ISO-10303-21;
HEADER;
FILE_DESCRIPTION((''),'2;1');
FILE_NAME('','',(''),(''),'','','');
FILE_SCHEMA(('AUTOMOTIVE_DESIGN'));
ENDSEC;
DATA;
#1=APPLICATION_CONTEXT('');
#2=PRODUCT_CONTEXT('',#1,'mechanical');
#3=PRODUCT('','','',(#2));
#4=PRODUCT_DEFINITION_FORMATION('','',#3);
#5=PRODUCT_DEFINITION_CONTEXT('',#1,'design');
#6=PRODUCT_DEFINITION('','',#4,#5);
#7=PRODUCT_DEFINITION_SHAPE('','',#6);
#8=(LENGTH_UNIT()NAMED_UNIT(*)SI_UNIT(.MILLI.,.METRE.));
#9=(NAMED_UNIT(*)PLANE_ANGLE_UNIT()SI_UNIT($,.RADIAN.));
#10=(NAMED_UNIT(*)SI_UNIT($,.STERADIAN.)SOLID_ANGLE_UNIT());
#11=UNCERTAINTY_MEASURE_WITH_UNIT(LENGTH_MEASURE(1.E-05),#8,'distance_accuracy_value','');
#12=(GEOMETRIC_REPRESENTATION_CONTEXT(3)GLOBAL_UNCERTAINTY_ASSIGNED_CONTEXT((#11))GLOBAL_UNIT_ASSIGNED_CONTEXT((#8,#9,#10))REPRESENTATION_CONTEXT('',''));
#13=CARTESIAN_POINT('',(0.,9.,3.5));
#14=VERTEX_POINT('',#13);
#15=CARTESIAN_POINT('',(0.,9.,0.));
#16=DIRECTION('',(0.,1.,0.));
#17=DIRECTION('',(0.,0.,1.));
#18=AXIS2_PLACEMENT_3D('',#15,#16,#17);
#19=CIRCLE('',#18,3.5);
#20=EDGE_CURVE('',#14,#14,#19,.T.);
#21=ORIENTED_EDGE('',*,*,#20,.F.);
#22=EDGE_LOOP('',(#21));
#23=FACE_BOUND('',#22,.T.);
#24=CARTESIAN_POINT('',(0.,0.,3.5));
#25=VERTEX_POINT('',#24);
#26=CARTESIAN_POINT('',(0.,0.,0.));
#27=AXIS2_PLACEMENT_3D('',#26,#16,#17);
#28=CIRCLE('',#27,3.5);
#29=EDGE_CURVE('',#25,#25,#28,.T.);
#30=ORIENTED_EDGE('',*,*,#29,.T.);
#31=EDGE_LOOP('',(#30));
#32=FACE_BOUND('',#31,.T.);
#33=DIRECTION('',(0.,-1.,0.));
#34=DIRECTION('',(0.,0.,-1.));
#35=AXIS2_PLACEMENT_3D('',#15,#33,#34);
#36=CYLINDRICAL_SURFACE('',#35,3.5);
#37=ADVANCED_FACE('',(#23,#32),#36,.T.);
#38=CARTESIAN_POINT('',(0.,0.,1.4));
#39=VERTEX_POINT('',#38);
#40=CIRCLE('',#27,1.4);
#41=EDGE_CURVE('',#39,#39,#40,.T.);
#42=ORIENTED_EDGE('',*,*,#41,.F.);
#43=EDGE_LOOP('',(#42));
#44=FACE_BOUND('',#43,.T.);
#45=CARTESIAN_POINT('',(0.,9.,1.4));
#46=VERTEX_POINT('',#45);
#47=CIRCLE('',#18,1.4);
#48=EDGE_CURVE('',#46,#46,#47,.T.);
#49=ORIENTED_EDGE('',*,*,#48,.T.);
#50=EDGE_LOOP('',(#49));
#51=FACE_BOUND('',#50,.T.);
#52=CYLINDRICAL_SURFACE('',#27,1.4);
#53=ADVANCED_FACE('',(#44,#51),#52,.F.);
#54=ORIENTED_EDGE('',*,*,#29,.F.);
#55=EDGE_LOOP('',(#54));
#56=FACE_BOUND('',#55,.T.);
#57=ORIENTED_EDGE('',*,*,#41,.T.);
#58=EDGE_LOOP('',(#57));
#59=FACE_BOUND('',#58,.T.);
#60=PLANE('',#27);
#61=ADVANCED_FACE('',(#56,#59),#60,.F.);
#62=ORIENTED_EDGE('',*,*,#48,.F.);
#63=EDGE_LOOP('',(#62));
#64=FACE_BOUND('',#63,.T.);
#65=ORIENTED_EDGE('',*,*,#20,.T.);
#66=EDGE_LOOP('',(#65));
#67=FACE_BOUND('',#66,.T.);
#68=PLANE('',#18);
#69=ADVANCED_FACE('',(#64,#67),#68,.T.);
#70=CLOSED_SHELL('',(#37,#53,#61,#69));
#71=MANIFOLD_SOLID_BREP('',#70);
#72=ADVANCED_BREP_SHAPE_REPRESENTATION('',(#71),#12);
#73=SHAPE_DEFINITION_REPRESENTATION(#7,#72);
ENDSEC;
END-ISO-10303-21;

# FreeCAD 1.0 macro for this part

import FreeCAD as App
import Part
import Sketcher
Q = App.Units.Quantity

doc = App.newDocument("Part")
body = doc.addObject("PartDesign::Body", "Body")

# Sketch on XZ plane
sketch1 = doc.addObject("Sketcher::SketchObject", "Sketch")
body.addObject(sketch1)
sketch1.AttachmentSupport = (doc.XZ_Plane, [""])
sketch1.MapMode = "FlatFace"
sketch1.addGeometry(Part.Circle(App.Vector(0, 0, 0), App.Vector(0, 0, 1), 3.5), False)
sketch1.addConstraint(Sketcher.Constraint("Coincident", 0, 3, -1, 1))
sketch1.addConstraint(Sketcher.Constraint("Diameter", 0, Q("7 mm")))
pad1 = doc.addObject("PartDesign::Pad", "Pad")
body.addObject(pad1)
pad1.Profile = sketch1
pad1.Length = 9
pad1.Reversed = True

# Sketch on XZ plane
sketch2 = doc.addObject("Sketcher::SketchObject", "Sketch001")
body.addObject(sketch2)
sketch2.AttachmentSupport = (doc.XZ_Plane, [""])
sketch2.MapMode = "FlatFace"
sketch2.AttachmentOffset = App.Placement(App.Vector(0, 0, -9), App.Rotation())
sketch2.addGeometry(Part.Circle(App.Vector(0, 0, 0), App.Vector(0, 0, 1), 1.4), False)
sketch2.addConstraint(Sketcher.Constraint("Coincident", 0, 3, -1, 1))
sketch2.addConstraint(Sketcher.Constraint("Diameter", 0, Q("2.8 mm")))
pocket1 = doc.addObject("PartDesign::Pocket", "Pocket")
body.addObject(pocket1)
pocket1.Profile = sketch2
pocket1.Type = "ThroughAll"
pocket1.Reversed = True

doc.recompute()
